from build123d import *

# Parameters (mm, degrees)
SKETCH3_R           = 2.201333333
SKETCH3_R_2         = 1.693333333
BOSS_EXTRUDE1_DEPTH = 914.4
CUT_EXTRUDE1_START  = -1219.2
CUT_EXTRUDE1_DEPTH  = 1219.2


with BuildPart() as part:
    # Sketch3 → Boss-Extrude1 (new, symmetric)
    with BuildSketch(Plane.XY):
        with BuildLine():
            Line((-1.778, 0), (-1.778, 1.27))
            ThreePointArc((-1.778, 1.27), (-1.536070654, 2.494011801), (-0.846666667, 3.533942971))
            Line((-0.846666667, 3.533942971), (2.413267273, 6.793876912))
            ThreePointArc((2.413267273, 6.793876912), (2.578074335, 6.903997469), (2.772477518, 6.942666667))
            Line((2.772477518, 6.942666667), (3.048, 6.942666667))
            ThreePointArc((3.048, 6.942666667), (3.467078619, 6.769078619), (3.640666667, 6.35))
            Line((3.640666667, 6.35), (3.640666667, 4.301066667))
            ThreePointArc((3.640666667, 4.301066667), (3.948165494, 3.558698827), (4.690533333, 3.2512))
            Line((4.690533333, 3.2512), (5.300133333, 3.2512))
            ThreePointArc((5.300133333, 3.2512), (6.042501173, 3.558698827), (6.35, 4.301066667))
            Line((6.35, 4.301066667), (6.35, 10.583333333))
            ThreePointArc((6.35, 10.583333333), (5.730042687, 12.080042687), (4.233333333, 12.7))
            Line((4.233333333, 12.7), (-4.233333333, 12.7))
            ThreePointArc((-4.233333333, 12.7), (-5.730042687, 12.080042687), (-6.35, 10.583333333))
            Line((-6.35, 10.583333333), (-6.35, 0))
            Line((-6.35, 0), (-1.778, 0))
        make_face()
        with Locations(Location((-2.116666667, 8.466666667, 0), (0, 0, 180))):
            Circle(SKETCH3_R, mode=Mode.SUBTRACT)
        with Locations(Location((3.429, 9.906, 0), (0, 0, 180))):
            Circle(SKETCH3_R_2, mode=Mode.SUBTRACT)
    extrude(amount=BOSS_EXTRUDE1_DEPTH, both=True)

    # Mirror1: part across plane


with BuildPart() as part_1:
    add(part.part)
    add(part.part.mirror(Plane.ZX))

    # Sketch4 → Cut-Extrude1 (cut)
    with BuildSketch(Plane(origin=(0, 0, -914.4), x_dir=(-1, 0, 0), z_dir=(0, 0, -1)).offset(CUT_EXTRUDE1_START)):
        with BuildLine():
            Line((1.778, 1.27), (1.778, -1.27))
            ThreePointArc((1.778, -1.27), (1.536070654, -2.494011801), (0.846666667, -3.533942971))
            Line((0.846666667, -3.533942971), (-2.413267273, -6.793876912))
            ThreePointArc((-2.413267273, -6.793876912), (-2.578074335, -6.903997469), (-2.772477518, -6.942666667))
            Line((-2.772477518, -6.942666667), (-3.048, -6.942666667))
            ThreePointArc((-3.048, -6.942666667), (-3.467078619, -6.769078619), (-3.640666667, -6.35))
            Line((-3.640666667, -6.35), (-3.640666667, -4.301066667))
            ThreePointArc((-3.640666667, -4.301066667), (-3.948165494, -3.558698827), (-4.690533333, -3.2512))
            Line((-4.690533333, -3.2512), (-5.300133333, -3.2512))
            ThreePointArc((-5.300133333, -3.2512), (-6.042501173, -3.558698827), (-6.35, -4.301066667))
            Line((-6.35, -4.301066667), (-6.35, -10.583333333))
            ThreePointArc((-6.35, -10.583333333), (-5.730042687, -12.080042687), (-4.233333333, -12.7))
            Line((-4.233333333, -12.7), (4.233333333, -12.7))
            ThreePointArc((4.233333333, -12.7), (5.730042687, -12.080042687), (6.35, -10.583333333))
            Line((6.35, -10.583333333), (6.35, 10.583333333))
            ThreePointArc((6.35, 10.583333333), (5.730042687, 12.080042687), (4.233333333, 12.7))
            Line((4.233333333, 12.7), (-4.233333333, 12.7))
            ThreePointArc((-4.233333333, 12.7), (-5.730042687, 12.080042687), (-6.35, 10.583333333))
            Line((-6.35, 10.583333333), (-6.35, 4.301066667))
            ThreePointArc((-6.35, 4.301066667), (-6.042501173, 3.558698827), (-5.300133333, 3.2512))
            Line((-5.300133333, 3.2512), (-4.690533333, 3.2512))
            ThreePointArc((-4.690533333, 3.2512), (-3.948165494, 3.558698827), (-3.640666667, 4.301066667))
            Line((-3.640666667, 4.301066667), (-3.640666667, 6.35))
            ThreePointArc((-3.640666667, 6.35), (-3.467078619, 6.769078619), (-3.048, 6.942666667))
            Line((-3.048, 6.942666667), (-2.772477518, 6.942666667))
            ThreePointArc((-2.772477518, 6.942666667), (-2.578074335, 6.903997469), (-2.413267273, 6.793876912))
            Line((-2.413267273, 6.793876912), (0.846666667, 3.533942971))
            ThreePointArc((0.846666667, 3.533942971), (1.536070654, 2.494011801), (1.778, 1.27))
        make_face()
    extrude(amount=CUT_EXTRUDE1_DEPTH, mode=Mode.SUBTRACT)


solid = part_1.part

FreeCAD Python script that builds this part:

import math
import FreeCAD as App
import Part
import Sketcher
from FreeCAD import Vector
Q = App.Units.Quantity

doc = App.newDocument("Part")
body = doc.addObject("PartDesign::Body", "Body")

sketch1 = body.newObject("Sketcher::SketchObject", "Sketch")
sketch1.AttachmentSupport = (doc.getObject("XY_Plane"), [""])
sketch1.MapMode = "FlatFace"
sketch1.addGeometry([
    Part.LineSegment(Vector(-1.78, 0, 0), Vector(-1.78, 1.27, 0)),
    Part.ArcOfCircle(Part.Circle(Vector(1.44, 1.27, 0), Vector(0, 0, 1), 3.22), math.radians(135), math.radians(180)),
    Part.LineSegment(Vector(-0.85, 3.53, 0), Vector(2.41, 6.79, 0)),
    Part.ArcOfCircle(Part.Circle(Vector(2.77, 6.43, 0), Vector(0, 0, 1), 0.51), math.radians(90), math.radians(135)),
    Part.LineSegment(Vector(2.77, 6.94, 0), Vector(3.05, 6.94, 0)),
    Part.ArcOfCircle(Part.Circle(Vector(3.05, 6.35, 0), Vector(0, 0, 1), 0.59), math.radians(0), math.radians(90)),
    Part.LineSegment(Vector(3.64, 6.35, 0), Vector(3.64, 4.3, 0)),
    Part.ArcOfCircle(Part.Circle(Vector(4.69, 4.3, 0), Vector(0, 0, 1), 1.05), math.radians(180), math.radians(270)),
    Part.LineSegment(Vector(4.69, 3.25, 0), Vector(5.3, 3.25, 0)),
    Part.ArcOfCircle(Part.Circle(Vector(5.3, 4.3, 0), Vector(0, 0, 1), 1.05), math.radians(-90), math.radians(0)),
    Part.LineSegment(Vector(6.35, 4.3, 0), Vector(6.35, 10.58, 0)),
    Part.ArcOfCircle(Part.Circle(Vector(4.23, 10.58, 0), Vector(0, 0, 1), 2.12), math.radians(0), math.radians(90)),
    Part.LineSegment(Vector(4.23, 12.7, 0), Vector(-4.23, 12.7, 0)),
    Part.ArcOfCircle(Part.Circle(Vector(-4.23, 10.58, 0), Vector(0, 0, 1), 2.12), math.radians(90), math.radians(180)),
    Part.LineSegment(Vector(-6.35, 10.58, 0), Vector(-6.35, 0, 0)),
    Part.LineSegment(Vector(-6.35, 0, 0), Vector(-1.78, 0, 0)),
    Part.Circle(Vector(-2.12, 8.47, 0), Vector(0, 0, 1), 2.2),
    Part.Circle(Vector(3.43, 9.91, 0), Vector(0, 0, 1), 1.69),
], False)
sketch1.addConstraint([
    Sketcher.Constraint("Tangent", 0, 2, 1, 2),
    Sketcher.Constraint("Coincident", 1, 1, 2, 1),
    Sketcher.Constraint("Tangent", 2, 2, 3, 2),
    Sketcher.Constraint("Tangent", 3, 1, 4, 1),
    Sketcher.Constraint("Tangent", 4, 2, 5, 2),
    Sketcher.Constraint("Tangent", 5, 1, 6, 1),
    Sketcher.Constraint("Tangent", 6, 2, 7, 1),
    Sketcher.Constraint("Tangent", 7, 2, 8, 1),
    Sketcher.Constraint("Tangent", 8, 2, 9, 1),
    Sketcher.Constraint("Tangent", 9, 2, 10, 1),
    Sketcher.Constraint("Tangent", 10, 2, 11, 1),
    Sketcher.Constraint("Tangent", 11, 2, 12, 1),
    Sketcher.Constraint("Tangent", 12, 2, 13, 1),
    Sketcher.Constraint("Tangent", 13, 2, 14, 1),
    Sketcher.Constraint("Coincident", 14, 2, 15, 1),
    Sketcher.Constraint("Coincident", 15, 2, 0, 1),
    Sketcher.Constraint("Vertical", 0),
    Sketcher.Constraint("Horizontal", 4),
    Sketcher.Constraint("Vertical", 6),
    Sketcher.Constraint("Horizontal", 8),
    Sketcher.Constraint("Vertical", 10),
    Sketcher.Constraint("Horizontal", 12),
    Sketcher.Constraint("Vertical", 14),
    Sketcher.Constraint("Horizontal", 15),
    Sketcher.Constraint("Equal", 7, 9),
    Sketcher.Constraint("Equal", 11, 13),
    Sketcher.Constraint("PointOnObject", 14, 2, -1),
    Sketcher.Constraint("Radius", 3, Q("0.02 in")),
    Sketcher.Constraint("Angle", 2, Q("45 deg")),
    Sketcher.Constraint("DistanceX", 15, 1, 15, 2, Q("0.18 in")),
    Sketcher.Constraint("DistanceY", 0, 1, 0, 2, Q("0.05 in")),
    Sketcher.Constraint("DistanceY", -1, 1, 11, 2, Q("0.5 in")),
    Sketcher.Constraint("DistanceY", 1, 3, 5, 3, Q("0.2 in")),
    Sketcher.Constraint("DistanceX", 8, 1, 8, 2, Q("0.024 in")),
    Sketcher.Constraint("DistanceX", -1, 1, 5, 3, Q("0.12 in")),
    Sketcher.Constraint("DistanceY", -1, 1, 17, 3, Q("0.39 in")),
    Sketcher.Constraint("DistanceX", 0, 2, -1, 1, Q("0.07 in")),
    Sketcher.Constraint("DistanceX", -1, 1, 9, 2, Q("0.25 in")),
    Sketcher.Constraint("DistanceX", 1, 3, 11, 3, Q("0.11 in")),
    Sketcher.Constraint("DistanceY", 3, 3, 16, 3, Q("0.08 in")),
    Sketcher.Constraint("DistanceX", 16, 3, 11, 3, Q("0.25 in")),
    Sketcher.Constraint("DistanceX", 1, 1, 1, 3, Q("0.09 in")),
    Sketcher.Constraint("DistanceX", -1, 1, 17, 3, Q("0.135 in")),
    Sketcher.Constraint("DistanceY", -1, 1, 7, 2, Q("0.128 in")),
    Sketcher.Constraint("DistanceY", 7, 3, 3, 3, Q("0.084 in")),
    Sketcher.Constraint("DistanceX", 1, 3, 7, 3, Q("0.128 in")),
    Sketcher.Constraint("Diameter", 16, Q("4.402667 mm")),
    Sketcher.Constraint("Diameter", 17, Q("3.386667 mm")),
])
pad1 = body.newObject("PartDesign::Pad", "Pad")
pad1.Profile = sketch1
pad1.Length = Q("72 in")
pad1.Midplane = True
body2 = doc.addObject("PartDesign::Body", "Body001")
doc.recompute()

body2.BaseFeature = body
doc.recompute()

mirroring = doc.addObject("Part::Mirroring", "Mirroring")
mirroring.Source = body
mirroring.Base = Vector(0, 0, 0)
mirroring.Normal = Vector(0, 1, 0)
body3 = doc.addObject("PartDesign::Body", "Body002")
body3.BaseFeature = mirroring
boolean = body2.newObject("PartDesign::Boolean", "Boolean")
boolean.Type = "Fuse"
boolean.addObjects([body3])
doc.recompute()

sketch2 = body2.newObject("Sketcher::SketchObject", "Sketch001")
sketch2.AttachmentSupport = (doc.getObject("XY_Plane001"), [""])
sketch2.MapMode = "FlatFace"
sketch2.AttachmentOffset = App.Placement(Vector(0, 0, 12 * 25.4), App.Rotation())
sketch2.addGeometry([
    Part.LineSegment(Vector(-1.78, 1.27, 0), Vector(-1.78, -1.27, 0)),
    Part.ArcOfCircle(Part.Circle(Vector(1.44, -1.27, 0), Vector(0, 0, 1), 3.22), math.radians(-180), math.radians(-135)),
    Part.LineSegment(Vector(-0.85, -3.53, 0), Vector(2.41, -6.79, 0)),
    Part.ArcOfCircle(Part.Circle(Vector(2.77, -6.43, 0), Vector(0, 0, 1), 0.51), math.radians(-135), math.radians(-90)),
    Part.LineSegment(Vector(2.77, -6.94, 0), Vector(3.05, -6.94, 0)),
    Part.ArcOfCircle(Part.Circle(Vector(3.05, -6.35, 0), Vector(0, 0, 1), 0.59), math.radians(-90), math.radians(0)),
    Part.LineSegment(Vector(3.64, -6.35, 0), Vector(3.64, -4.3, 0)),
    Part.ArcOfCircle(Part.Circle(Vector(4.69, -4.3, 0), Vector(0, 0, 1), 1.05), math.radians(90), math.radians(180)),
    Part.LineSegment(Vector(4.69, -3.25, 0), Vector(5.3, -3.25, 0)),
    Part.ArcOfCircle(Part.Circle(Vector(5.3, -4.3, 0), Vector(0, 0, 1), 1.05), math.radians(0), math.radians(90)),
    Part.LineSegment(Vector(6.35, -4.3, 0), Vector(6.35, -10.58, 0)),
    Part.ArcOfCircle(Part.Circle(Vector(4.23, -10.58, 0), Vector(0, 0, 1), 2.12), math.radians(-90), math.radians(0)),
    Part.LineSegment(Vector(4.23, -12.7, 0), Vector(-4.23, -12.7, 0)),
    Part.ArcOfCircle(Part.Circle(Vector(-4.23, -10.58, 0), Vector(0, 0, 1), 2.12), math.radians(180), math.radians(270)),
    Part.LineSegment(Vector(-6.35, -10.58, 0), Vector(-6.35, 10.58, 0)),
    Part.ArcOfCircle(Part.Circle(Vector(-4.23, 10.58, 0), Vector(0, 0, 1), 2.12), math.radians(90), math.radians(180)),
    Part.LineSegment(Vector(-4.23, 12.7, 0), Vector(4.23, 12.7, 0)),
    Part.ArcOfCircle(Part.Circle(Vector(4.23, 10.58, 0), Vector(0, 0, 1), 2.12), math.radians(0), math.radians(90)),
    Part.LineSegment(Vector(6.35, 10.58, 0), Vector(6.35, 4.3, 0)),
    Part.ArcOfCircle(Part.Circle(Vector(5.3, 4.3, 0), Vector(0, 0, 1), 1.05), math.radians(-90), math.radians(0)),
    Part.LineSegment(Vector(5.3, 3.25, 0), Vector(4.69, 3.25, 0)),
    Part.ArcOfCircle(Part.Circle(Vector(4.69, 4.3, 0), Vector(0, 0, 1), 1.05), math.radians(180), math.radians(270)),
    Part.LineSegment(Vector(3.64, 4.3, 0), Vector(3.64, 6.35, 0)),
    Part.ArcOfCircle(Part.Circle(Vector(3.05, 6.35, 0), Vector(0, 0, 1), 0.59), math.radians(0), math.radians(90)),
    Part.LineSegment(Vector(3.05, 6.94, 0), Vector(2.77, 6.94, 0)),
    Part.ArcOfCircle(Part.Circle(Vector(2.77, 6.43, 0), Vector(0, 0, 1), 0.51), math.radians(90), math.radians(135)),
    Part.LineSegment(Vector(2.41, 6.79, 0), Vector(-0.85, 3.53, 0)),
    Part.ArcOfCircle(Part.Circle(Vector(1.44, 1.27, 0), Vector(0, 0, 1), 3.22), math.radians(135), math.radians(180)),
], False)
sketch2.addConstraint([
    Sketcher.Constraint("Tangent", 0, 2, 1, 1),
    Sketcher.Constraint("Coincident", 1, 2, 2, 1),
    Sketcher.Constraint("Tangent", 2, 2, 3, 1),
    Sketcher.Constraint("Tangent", 3, 2, 4, 1),
    Sketcher.Constraint("Tangent", 4, 2, 5, 1),
    Sketcher.Constraint("Tangent", 5, 2, 6, 1),
    Sketcher.Constraint("Tangent", 6, 2, 7, 2),
    Sketcher.Constraint("Tangent", 7, 1, 8, 1),
    Sketcher.Constraint("Tangent", 8, 2, 9, 2),
    Sketcher.Constraint("Tangent", 9, 1, 10, 1),
    Sketcher.Constraint("Tangent", 10, 2, 11, 2),
    Sketcher.Constraint("Tangent", 11, 1, 12, 1),
    Sketcher.Constraint("Tangent", 12, 2, 13, 2),
    Sketcher.Constraint("Tangent", 13, 1, 14, 1),
    Sketcher.Constraint("Tangent", 14, 2, 15, 2),
    Sketcher.Constraint("Tangent", 15, 1, 16, 1),
    Sketcher.Constraint("Tangent", 16, 2, 17, 2),
    Sketcher.Constraint("Tangent", 17, 1, 18, 1),
    Sketcher.Constraint("Tangent", 18, 2, 19, 2),
    Sketcher.Constraint("Tangent", 19, 1, 20, 1),
    Sketcher.Constraint("Tangent", 20, 2, 21, 2),
    Sketcher.Constraint("Tangent", 21, 1, 22, 1),
    Sketcher.Constraint("Tangent", 22, 2, 23, 1),
    Sketcher.Constraint("Tangent", 23, 2, 24, 1),
    Sketcher.Constraint("Tangent", 24, 2, 25, 1),
    Sketcher.Constraint("Tangent", 25, 2, 26, 1),
    Sketcher.Constraint("Coincident", 26, 2, 27, 1),
    Sketcher.Constraint("Tangent", 27, 2, 0, 1),
    Sketcher.Constraint("Vertical", 0),
    Sketcher.Constraint("Horizontal", 4),
    Sketcher.Constraint("Vertical", 6),
    Sketcher.Constraint("Horizontal", 8),
    Sketcher.Constraint("Vertical", 10),
    Sketcher.Constraint("Horizontal", 12),
    Sketcher.Constraint("Vertical", 14),
    Sketcher.Constraint("Horizontal", 16),
    Sketcher.Constraint("Vertical", 18),
    Sketcher.Constraint("Horizontal", 20),
    Sketcher.Constraint("Vertical", 22),
    Sketcher.Constraint("Horizontal", 24),
    Sketcher.Constraint("Equal", 7, 9),
    Sketcher.Constraint("Equal", 11, 13),
    Sketcher.Constraint("Equal", 13, 15),
    Sketcher.Constraint("Equal", 15, 17),
    Sketcher.Constraint("Equal", 9, 19),
    Sketcher.Constraint("Equal", 19, 21),
    Sketcher.Constraint("Equal", 5, 23),
    Sketcher.Constraint("Equal", 3, 25),
    Sketcher.Constraint("Equal", 1, 27),
    Sketcher.Constraint("Symmetric", 11, 3, 15, 3, -1, 1),
    Sketcher.Constraint("Symmetric", 9, 3, 19, 3, -1),
    Sketcher.Constraint("Symmetric", 5, 3, 23, 3, -1),
    Sketcher.Constraint("Symmetric", 2, 2, 25, 2, -1),
    Sketcher.Constraint("Perpendicular", 2, 26),
    Sketcher.Constraint("Vertical", 1, 2, 26, 2),
    Sketcher.Constraint("Radius", 3, Q("0.02 in")),
    Sketcher.Constraint("DistanceY", 0, 2, 0, 1, Q("0.1 in")),
    Sketcher.Constraint("DistanceY", 11, 1, -1, 1, Q("0.5 in")),
    Sketcher.Constraint("DistanceY", 5, 3, 1, 3, Q("0.2 in")),
    Sketcher.Constraint("DistanceX", 8, 1, 8, 2, Q("0.024 in")),
    Sketcher.Constraint("DistanceX", -1, 1, 5, 3, Q("0.12 in")),
    Sketcher.Constraint("DistanceX", 0, 2, -1, 1, Q("0.07 in")),
    Sketcher.Constraint("DistanceX", -1, 1, 9, 1, Q("0.25 in")),
    Sketcher.Constraint("DistanceX", 1, 3, 11, 3, Q("0.11 in")),
    Sketcher.Constraint("DistanceY", 3, 3, 15, 3, Q("0.67 in")),
    Sketcher.Constraint("DistanceX", 1, 2, 1, 3, Q("0.09 in")),
    Sketcher.Constraint("DistanceY", 7, 1, -1, 1, Q("0.128 in")),
    Sketcher.Constraint("DistanceY", 3, 3, 7, 3, Q("0.084 in")),
])
pocket1 = body2.newObject("PartDesign::Pocket", "Pocket")
pocket1.Profile = sketch2
pocket1.Length = Q("48 in")
mirroring.Visibility = False

doc.recompute()
